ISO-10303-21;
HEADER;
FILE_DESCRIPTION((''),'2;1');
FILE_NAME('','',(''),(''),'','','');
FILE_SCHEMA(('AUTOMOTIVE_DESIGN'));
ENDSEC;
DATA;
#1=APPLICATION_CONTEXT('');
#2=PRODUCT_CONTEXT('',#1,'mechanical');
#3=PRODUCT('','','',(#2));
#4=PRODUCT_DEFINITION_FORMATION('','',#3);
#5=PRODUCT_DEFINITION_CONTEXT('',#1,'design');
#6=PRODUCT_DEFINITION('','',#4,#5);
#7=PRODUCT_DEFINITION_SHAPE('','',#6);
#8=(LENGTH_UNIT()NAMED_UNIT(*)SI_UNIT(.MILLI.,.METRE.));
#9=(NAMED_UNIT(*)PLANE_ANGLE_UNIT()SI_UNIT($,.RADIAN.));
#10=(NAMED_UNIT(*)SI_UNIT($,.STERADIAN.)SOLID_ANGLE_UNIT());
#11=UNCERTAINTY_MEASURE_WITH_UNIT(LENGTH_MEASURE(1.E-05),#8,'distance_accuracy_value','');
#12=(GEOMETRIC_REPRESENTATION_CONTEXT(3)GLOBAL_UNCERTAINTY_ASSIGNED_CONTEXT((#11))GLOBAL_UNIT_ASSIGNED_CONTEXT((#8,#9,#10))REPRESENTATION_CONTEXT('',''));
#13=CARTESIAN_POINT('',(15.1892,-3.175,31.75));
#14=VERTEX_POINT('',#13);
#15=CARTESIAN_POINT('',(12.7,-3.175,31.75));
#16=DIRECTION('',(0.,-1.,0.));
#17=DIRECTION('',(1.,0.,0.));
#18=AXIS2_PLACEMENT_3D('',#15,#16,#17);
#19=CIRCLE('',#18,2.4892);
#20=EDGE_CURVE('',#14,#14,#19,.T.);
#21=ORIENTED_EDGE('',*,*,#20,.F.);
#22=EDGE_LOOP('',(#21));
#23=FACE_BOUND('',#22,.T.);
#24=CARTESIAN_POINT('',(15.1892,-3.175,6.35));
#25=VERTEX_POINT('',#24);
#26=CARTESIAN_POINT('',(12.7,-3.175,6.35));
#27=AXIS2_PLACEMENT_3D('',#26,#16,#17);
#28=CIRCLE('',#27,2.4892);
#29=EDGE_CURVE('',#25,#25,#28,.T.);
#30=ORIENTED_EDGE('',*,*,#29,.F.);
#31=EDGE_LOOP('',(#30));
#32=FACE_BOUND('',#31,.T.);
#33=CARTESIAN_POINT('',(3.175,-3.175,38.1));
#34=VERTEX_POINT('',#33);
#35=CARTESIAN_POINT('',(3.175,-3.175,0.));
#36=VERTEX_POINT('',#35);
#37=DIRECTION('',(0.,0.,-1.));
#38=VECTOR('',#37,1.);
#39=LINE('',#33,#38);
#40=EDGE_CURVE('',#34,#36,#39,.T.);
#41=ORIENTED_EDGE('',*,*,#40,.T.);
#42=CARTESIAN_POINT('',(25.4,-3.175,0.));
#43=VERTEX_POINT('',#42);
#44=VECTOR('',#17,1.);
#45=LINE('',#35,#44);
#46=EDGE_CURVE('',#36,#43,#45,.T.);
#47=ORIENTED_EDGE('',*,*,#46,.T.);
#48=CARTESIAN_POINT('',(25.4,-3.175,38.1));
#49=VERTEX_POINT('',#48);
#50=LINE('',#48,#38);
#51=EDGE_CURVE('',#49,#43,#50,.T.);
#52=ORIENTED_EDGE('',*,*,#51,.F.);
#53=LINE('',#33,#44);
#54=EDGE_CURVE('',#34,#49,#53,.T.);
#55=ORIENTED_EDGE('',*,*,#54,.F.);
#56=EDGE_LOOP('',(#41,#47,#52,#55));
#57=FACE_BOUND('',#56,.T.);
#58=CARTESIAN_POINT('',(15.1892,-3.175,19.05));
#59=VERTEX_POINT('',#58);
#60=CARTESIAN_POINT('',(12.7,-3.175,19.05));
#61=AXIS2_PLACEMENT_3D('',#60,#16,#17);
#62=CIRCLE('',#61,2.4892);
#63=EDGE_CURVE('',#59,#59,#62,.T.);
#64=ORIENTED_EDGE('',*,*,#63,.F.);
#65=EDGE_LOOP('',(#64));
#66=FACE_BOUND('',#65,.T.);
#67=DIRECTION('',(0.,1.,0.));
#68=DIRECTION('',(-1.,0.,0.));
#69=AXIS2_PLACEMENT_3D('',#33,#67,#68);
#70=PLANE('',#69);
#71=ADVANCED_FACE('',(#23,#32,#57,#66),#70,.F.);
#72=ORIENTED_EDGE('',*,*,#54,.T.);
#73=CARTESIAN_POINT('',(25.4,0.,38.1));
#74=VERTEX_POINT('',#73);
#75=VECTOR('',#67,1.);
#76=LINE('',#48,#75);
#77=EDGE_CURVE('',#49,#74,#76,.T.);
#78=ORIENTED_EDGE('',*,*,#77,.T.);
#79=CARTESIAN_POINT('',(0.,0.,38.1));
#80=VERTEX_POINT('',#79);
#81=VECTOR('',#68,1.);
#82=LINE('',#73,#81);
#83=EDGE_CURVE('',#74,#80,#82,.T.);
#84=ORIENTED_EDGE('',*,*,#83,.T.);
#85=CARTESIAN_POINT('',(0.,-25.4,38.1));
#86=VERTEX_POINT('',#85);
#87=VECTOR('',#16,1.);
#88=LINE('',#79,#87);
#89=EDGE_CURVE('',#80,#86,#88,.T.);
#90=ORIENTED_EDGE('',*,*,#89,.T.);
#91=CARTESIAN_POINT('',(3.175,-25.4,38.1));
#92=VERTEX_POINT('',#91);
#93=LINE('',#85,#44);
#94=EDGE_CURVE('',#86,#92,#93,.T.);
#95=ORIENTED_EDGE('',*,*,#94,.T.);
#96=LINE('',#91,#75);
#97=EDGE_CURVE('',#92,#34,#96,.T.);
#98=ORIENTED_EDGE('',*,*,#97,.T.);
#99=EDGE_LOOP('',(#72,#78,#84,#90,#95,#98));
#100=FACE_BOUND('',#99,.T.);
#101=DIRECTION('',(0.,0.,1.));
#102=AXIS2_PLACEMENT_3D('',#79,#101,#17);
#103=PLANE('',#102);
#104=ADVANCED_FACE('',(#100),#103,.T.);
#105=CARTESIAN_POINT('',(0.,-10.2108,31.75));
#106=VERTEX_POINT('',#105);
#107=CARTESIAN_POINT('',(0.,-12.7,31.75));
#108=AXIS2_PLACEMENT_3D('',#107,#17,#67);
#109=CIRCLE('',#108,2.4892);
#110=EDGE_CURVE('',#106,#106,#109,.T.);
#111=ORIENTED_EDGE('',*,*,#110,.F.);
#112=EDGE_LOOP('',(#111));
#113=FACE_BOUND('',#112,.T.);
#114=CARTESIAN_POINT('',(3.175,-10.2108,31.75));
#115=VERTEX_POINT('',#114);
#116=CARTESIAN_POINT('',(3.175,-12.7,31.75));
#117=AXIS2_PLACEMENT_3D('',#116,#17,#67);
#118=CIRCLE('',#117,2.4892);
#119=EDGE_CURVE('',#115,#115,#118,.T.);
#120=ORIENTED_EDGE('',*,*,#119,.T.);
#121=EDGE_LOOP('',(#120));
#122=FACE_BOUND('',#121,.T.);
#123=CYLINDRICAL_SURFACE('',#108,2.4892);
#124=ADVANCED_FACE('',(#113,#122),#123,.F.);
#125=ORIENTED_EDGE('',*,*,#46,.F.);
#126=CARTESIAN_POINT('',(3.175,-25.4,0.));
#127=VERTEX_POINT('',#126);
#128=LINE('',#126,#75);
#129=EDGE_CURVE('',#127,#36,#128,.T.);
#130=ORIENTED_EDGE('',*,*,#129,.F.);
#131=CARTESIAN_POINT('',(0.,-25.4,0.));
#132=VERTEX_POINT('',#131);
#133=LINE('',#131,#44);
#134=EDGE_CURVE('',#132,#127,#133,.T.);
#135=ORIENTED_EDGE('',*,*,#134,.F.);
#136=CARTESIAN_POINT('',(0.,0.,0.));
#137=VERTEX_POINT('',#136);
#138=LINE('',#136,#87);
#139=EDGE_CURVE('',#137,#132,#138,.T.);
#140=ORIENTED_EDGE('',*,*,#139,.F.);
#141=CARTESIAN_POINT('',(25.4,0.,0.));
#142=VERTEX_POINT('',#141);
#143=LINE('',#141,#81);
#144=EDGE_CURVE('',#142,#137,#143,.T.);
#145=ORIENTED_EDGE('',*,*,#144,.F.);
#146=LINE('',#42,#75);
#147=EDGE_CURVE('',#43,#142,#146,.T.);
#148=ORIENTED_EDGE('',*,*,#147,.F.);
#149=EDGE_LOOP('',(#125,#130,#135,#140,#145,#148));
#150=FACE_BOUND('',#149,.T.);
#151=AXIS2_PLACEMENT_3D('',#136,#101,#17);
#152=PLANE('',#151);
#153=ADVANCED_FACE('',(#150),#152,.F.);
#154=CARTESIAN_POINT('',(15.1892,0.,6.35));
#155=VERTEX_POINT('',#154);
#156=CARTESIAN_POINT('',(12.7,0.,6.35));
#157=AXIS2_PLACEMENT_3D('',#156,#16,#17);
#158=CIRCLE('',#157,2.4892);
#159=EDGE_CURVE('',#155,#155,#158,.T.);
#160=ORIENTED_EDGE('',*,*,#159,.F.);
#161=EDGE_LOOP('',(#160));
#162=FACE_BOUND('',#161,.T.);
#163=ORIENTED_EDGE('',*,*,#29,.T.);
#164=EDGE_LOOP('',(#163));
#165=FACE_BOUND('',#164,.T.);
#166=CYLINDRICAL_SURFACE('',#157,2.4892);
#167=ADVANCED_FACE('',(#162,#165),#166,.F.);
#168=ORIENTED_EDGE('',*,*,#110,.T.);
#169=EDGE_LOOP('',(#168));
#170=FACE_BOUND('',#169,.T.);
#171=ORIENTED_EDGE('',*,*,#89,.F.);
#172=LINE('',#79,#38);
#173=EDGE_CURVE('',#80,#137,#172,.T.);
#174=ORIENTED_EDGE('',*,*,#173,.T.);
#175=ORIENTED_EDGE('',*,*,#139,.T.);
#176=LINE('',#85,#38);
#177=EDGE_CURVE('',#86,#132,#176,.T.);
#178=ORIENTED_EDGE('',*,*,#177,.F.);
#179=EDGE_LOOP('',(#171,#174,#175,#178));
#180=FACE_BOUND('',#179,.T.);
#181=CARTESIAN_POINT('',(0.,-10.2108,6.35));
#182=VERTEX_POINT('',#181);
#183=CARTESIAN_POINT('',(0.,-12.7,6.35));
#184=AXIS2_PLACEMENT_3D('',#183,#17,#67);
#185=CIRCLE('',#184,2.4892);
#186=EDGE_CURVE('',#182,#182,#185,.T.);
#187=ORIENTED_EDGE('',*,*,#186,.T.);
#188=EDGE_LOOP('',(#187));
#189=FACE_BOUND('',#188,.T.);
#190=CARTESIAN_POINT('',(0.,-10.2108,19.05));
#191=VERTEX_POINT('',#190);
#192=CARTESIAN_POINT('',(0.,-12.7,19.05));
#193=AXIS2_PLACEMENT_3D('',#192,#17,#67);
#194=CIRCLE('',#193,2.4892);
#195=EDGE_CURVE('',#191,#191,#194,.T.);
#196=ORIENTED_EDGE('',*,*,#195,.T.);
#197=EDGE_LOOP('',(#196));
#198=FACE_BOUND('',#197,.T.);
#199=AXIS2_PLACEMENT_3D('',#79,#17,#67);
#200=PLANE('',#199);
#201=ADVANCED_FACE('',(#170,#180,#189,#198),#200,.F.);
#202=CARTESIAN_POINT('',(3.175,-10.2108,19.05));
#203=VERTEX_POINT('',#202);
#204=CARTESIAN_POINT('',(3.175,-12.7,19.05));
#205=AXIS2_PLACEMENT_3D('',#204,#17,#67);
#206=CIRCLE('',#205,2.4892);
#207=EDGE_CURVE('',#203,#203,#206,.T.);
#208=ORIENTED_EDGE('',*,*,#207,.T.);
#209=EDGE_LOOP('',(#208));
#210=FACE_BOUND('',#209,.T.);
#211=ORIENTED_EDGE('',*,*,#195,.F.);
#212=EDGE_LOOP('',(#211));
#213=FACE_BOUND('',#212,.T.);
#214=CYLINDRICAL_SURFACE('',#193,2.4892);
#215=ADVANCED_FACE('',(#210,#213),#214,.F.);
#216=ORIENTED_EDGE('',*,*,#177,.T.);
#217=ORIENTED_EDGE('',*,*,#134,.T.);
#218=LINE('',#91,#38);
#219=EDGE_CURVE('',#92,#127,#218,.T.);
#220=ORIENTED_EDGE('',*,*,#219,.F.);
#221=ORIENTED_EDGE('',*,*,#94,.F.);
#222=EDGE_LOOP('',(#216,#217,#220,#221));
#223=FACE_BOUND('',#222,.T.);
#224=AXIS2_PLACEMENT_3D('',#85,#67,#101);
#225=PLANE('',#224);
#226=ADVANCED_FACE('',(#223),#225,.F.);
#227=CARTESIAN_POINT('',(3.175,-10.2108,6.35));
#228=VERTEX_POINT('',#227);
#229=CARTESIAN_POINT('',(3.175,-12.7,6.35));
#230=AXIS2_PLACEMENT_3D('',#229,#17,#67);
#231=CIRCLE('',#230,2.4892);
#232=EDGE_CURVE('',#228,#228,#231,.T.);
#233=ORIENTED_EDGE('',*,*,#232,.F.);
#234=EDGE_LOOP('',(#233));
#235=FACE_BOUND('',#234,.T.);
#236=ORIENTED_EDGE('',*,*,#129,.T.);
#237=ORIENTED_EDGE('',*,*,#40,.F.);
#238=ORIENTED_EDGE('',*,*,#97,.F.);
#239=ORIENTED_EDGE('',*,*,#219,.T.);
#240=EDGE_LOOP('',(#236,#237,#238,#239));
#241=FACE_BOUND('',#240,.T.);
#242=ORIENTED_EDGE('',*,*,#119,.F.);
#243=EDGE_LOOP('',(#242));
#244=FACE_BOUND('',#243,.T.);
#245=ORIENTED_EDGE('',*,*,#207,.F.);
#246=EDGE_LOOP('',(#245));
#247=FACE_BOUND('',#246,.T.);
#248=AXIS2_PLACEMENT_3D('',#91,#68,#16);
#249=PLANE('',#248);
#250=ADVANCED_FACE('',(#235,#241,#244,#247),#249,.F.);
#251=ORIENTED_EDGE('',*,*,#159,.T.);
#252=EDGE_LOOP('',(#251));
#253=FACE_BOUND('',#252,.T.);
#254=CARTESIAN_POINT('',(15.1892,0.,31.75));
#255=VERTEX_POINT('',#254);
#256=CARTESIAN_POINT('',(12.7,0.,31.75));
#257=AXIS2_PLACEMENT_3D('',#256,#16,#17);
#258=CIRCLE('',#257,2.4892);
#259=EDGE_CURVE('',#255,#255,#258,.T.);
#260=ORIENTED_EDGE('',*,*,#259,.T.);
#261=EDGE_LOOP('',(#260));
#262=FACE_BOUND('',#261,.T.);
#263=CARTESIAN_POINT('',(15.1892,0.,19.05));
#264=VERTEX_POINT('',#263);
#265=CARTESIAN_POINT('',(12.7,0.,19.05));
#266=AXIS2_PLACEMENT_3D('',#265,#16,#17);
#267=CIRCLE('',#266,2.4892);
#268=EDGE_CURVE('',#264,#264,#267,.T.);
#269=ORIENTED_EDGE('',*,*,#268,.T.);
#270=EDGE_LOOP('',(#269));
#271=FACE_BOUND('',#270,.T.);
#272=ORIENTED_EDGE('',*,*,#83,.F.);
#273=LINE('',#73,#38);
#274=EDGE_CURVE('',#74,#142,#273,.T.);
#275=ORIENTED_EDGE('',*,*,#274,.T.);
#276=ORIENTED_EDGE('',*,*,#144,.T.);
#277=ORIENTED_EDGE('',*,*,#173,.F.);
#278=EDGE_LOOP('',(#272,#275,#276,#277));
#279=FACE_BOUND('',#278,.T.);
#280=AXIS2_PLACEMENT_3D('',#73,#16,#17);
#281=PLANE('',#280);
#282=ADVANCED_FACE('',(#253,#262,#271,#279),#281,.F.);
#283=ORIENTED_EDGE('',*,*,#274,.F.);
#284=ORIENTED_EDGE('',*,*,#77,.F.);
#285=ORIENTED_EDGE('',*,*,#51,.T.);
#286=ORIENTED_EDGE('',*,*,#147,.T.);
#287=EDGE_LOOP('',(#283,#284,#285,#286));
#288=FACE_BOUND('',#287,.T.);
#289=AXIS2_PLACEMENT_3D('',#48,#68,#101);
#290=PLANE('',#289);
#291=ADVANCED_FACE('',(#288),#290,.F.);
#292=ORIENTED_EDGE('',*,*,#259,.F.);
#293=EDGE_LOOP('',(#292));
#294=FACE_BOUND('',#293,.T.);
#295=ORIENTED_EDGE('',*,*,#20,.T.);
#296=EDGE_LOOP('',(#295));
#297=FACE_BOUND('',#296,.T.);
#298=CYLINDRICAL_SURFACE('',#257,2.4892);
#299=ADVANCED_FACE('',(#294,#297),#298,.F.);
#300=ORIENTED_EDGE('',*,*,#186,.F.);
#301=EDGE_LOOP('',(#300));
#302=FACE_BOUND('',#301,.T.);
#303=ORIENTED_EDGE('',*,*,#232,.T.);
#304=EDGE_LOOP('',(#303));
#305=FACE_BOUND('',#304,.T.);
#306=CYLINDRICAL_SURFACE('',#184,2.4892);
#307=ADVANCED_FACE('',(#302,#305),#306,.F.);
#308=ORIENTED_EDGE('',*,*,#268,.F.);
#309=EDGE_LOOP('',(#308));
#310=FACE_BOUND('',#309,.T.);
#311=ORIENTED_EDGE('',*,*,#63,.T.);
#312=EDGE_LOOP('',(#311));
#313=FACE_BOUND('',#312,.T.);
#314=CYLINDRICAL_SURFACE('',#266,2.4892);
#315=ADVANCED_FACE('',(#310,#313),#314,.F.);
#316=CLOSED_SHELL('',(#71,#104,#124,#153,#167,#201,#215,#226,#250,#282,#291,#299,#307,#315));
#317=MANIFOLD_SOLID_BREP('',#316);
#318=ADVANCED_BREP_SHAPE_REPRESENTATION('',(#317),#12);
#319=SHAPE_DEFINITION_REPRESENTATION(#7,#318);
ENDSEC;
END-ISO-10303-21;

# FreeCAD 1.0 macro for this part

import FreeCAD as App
import Part
import Sketcher

V = App.Vector
Q = App.Units.Quantity


def add_polygon(sketch, points):
    """Adds a closed chain of lines whose ends are joined by coincident constraints."""
    first, n = sketch.GeometryCount, len(points)
    for a, b in zip(points, points[1:] + points[:1]):
        sketch.addGeometry(Part.LineSegment(App.Vector(*a, 0), App.Vector(*b, 0)), False)
    for i in range(n):
        sketch.addConstraint(Sketcher.Constraint("Coincident", first + i, 2, first + (i + 1) % n, 1))

doc = App.newDocument("Part")
body = doc.addObject("PartDesign::Body", "Body")

# Sketch on XY plane
sketch1 = doc.addObject("Sketcher::SketchObject", "Sketch")
body.addObject(sketch1)
sketch1.AttachmentSupport = (doc.XY_Plane, [""])
sketch1.MapMode = "FlatFace"
add_polygon(sketch1, [(0, 0), (0, -25.4), (3.2, -25.4), (3.2, -3.2), (25.4, -3.2), (25.4, 0)])  # lines 0-5
sketch1.addConstraint([
    Sketcher.Constraint("Vertical", 0),
    Sketcher.Constraint("Horizontal", 1),
    Sketcher.Constraint("Vertical", 2),
    Sketcher.Constraint("Horizontal", 3),
    Sketcher.Constraint("Vertical", 4),
    Sketcher.Constraint("Horizontal", 5),
    Sketcher.Constraint("Coincident", 5, 2, -1, 1),
    Sketcher.Constraint("Equal", 5, 0),
    Sketcher.Constraint("Equal", 3, 2),
    Sketcher.Constraint("DistanceX", 5, 2, 5, 1, Q("1 in")),
    Sketcher.Constraint("DistanceX", 1, 1, 1, 2, Q("0.125 in")),
])
pad1 = doc.addObject("PartDesign::Pad", "Pad")
body.addObject(pad1)
pad1.Profile = sketch1
pad1.Length = Q("1.5 in")

# Sketch on YZ plane
sketch2 = doc.addObject("Sketcher::SketchObject", "Sketch001")
body.addObject(sketch2)
sketch2.AttachmentSupport = (doc.YZ_Plane, [""])
sketch2.MapMode = "FlatFace"
sketch2.AttachmentOffset = App.Placement(V(0, 0, 0.125 * 25.4), App.Rotation())
sketch2.addGeometry([
    Part.Circle(V(-12.7, 6.3, 0), V(0, 0, 1), 2.5),
    Part.Circle(V(-12.7, 19.1, 0), V(0, 0, 1), 2.5),
    Part.Circle(V(-12.7, 31.8, 0), V(0, 0, 1), 2.5),
    Part.Circle(V(-12.7, 44.5, 0), V(0, 0, 1), 2.5),
], False)
sketch2.addConstraint([
    Sketcher.Constraint("Equal", 0, 1),
    Sketcher.Constraint("Equal", 1, 2),
    Sketcher.Constraint("Equal", 2, 3),
    Sketcher.Constraint("Vertical", 0, 3, 1, 3),
    Sketcher.Constraint("Vertical", 1, 3, 2, 3),
    Sketcher.Constraint("Vertical", 2, 3, 3, 3),
    Sketcher.Constraint("Diameter", 0, Q("0.196 in")),
    Sketcher.Constraint("DistanceY", 0, 3, 2, 3, Q("1 in")),
    Sketcher.Constraint("DistanceY", 1, 3, 3, 3, Q("1 in")),
    Sketcher.Constraint("DistanceX", 0, 3, -1, 1, Q("0.5 in")),
    Sketcher.Constraint("DistanceY", 0, 3, 1, 3, Q("0.5 in")),
    Sketcher.Constraint("DistanceY", -1, 1, 0, 3, Q("0.25 in")),
])
pocket1 = doc.addObject("PartDesign::Pocket", "Pocket")
body.addObject(pocket1)
pocket1.Profile = sketch2
pocket1.Type = "ThroughAll"

# Sketch on XZ plane
sketch3 = doc.addObject("Sketcher::SketchObject", "Sketch002")
body.addObject(sketch3)
sketch3.AttachmentSupport = (doc.XZ_Plane, [""])
sketch3.MapMode = "FlatFace"
sketch3.AttachmentOffset = App.Placement(V(0, 0, 0.125 * 25.4), App.Rotation())
sketch3.addGeometry([
    Part.Circle(V(12.7, 6.3, 0), V(0, 0, 1), 2.5),
    Part.Circle(V(12.7, 19.1, 0), V(0, 0, 1), 2.5),
    Part.Circle(V(12.7, 31.8, 0), V(0, 0, 1), 2.5),
    Part.Circle(V(12.7, 44.5, 0), V(0, 0, 1), 2.5),
], False)
sketch3.addConstraint([
    Sketcher.Constraint("Equal", 0, 1),
    Sketcher.Constraint("Equal", 1, 2),
    Sketcher.Constraint("Equal", 2, 3),
    Sketcher.Constraint("Vertical", 0, 3, 1, 3),
    Sketcher.Constraint("Vertical", 1, 3, 2, 3),
    Sketcher.Constraint("Vertical", 2, 3, 3, 3),
    Sketcher.Constraint("Diameter", 0, Q("0.196 in")),
    Sketcher.Constraint("DistanceY", 0, 3, 2, 3, Q("1 in")),
    Sketcher.Constraint("DistanceY", 1, 3, 3, 3, Q("1 in")),
    Sketcher.Constraint("DistanceX", -1, 1, 0, 3, Q("0.5 in")),
    Sketcher.Constraint("DistanceY", 0, 3, 1, 3, Q("0.5 in")),
    Sketcher.Constraint("DistanceY", -1, 1, 0, 3, Q("0.25 in")),
])
pocket2 = doc.addObject("PartDesign::Pocket", "Pocket001")
body.addObject(pocket2)
pocket2.Profile = sketch3
pocket2.Type = "ThroughAll"

doc.recompute()
